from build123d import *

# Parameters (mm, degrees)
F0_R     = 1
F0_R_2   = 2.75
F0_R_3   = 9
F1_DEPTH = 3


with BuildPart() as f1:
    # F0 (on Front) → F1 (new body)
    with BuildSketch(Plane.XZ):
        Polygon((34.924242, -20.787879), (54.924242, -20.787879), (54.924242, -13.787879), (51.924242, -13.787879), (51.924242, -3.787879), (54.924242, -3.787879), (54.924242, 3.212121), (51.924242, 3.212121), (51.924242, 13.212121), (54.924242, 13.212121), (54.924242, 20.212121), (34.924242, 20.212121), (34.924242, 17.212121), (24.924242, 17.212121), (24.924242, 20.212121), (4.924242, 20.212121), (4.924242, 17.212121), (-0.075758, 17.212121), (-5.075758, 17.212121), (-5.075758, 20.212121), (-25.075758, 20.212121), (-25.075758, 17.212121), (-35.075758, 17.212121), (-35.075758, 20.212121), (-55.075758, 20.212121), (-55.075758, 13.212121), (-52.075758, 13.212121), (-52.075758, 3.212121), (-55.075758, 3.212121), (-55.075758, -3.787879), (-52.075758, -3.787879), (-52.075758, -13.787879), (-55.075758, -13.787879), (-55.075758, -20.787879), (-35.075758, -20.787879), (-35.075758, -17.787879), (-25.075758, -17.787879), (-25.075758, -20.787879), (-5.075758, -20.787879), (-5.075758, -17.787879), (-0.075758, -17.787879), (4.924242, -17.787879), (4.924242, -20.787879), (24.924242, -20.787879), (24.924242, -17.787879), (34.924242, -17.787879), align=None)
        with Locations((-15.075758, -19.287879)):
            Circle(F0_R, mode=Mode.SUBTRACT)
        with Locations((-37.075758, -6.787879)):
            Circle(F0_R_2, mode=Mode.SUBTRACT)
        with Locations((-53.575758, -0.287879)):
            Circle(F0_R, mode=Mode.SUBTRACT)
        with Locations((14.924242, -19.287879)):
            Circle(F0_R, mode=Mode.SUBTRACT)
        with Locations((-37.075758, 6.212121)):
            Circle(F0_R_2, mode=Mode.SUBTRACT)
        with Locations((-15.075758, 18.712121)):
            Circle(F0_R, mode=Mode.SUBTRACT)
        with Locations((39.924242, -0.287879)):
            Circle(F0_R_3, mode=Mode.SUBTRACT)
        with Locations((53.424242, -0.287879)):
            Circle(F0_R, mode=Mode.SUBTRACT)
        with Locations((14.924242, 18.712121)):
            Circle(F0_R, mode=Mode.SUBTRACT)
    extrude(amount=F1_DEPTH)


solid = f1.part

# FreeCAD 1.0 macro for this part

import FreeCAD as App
import Part
import Sketcher
from FreeCAD import Vector

doc = App.newDocument("Part")
params = doc.addObject("Spreadsheet::Sheet", "Params")
for row, (alias, value) in enumerate([
    ("sketch1_diameter", "2 mm"),
    ("sketch1_diameter2", "18 mm"),
    ("sketch1_diameter3", "5.5 mm"),
    ("sketch1_width", "20 mm"),
    ("sketch1_width2", "3 mm"),
    ("pad1_length", "3 mm"),
], start=1):
    params.set(f"A{row}", alias)
    params.set(f"B{row}", "=" + value)
    params.setAlias(f"B{row}", alias)

body = doc.addObject("PartDesign::Body", "Body")

sketch1 = body.newObject("Sketcher::SketchObject", "Sketch")
sketch1.AttachmentSupport = (doc.getObject("XZ_Plane"), [""])
sketch1.MapMode = "FlatFace"
sketch1.addGeometry(Part.LineSegment(Vector(34.9, -20.8, 0), Vector(54.9, -20.8, 0)), False)
sketch1.addGeometry(Part.LineSegment(Vector(54.9, -20.8, 0), Vector(54.9, -13.8, 0)), False)
sketch1.addGeometry(Part.LineSegment(Vector(54.9, -13.8, 0), Vector(51.9, -13.8, 0)), False)
sketch1.addGeometry(Part.LineSegment(Vector(51.9, -13.8, 0), Vector(51.9, -3.8, 0)), False)
sketch1.addGeometry(Part.LineSegment(Vector(51.9, -3.8, 0), Vector(54.9, -3.8, 0)), False)
sketch1.addGeometry(Part.LineSegment(Vector(54.9, -3.8, 0), Vector(54.9, 3.2, 0)), False)
sketch1.addGeometry(Part.LineSegment(Vector(54.9, 3.2, 0), Vector(51.9, 3.2, 0)), False)
sketch1.addGeometry(Part.LineSegment(Vector(51.9, 3.2, 0), Vector(51.9, 13.2, 0)), False)
sketch1.addGeometry(Part.LineSegment(Vector(51.9, 13.2, 0), Vector(54.9, 13.2, 0)), False)
sketch1.addGeometry(Part.LineSegment(Vector(54.9, 13.2, 0), Vector(54.9, 20.2, 0)), False)
sketch1.addGeometry(Part.LineSegment(Vector(54.9, 20.2, 0), Vector(34.9, 20.2, 0)), False)
sketch1.addGeometry(Part.LineSegment(Vector(34.9, 20.2, 0), Vector(34.9, 17.2, 0)), False)
sketch1.addGeometry(Part.LineSegment(Vector(34.9, 17.2, 0), Vector(24.9, 17.2, 0)), False)
sketch1.addGeometry(Part.LineSegment(Vector(24.9, 17.2, 0), Vector(24.9, 20.2, 0)), False)
sketch1.addGeometry(Part.LineSegment(Vector(24.9, 20.2, 0), Vector(4.9, 20.2, 0)), False)
sketch1.addGeometry(Part.LineSegment(Vector(4.9, 20.2, 0), Vector(4.9, 17.2, 0)), False)
sketch1.addGeometry(Part.LineSegment(Vector(4.9, 17.2, 0), Vector(-5.1, 17.2, 0)), False)
sketch1.addGeometry(Part.LineSegment(Vector(-5.1, 17.2, 0), Vector(-5.1, 20.2, 0)), False)
sketch1.addGeometry(Part.LineSegment(Vector(-5.1, 20.2, 0), Vector(-25.1, 20.2, 0)), False)
sketch1.addGeometry(Part.LineSegment(Vector(-25.1, 20.2, 0), Vector(-25.1, 17.2, 0)), False)
sketch1.addGeometry(Part.LineSegment(Vector(-25.1, 17.2, 0), Vector(-35.1, 17.2, 0)), False)
sketch1.addGeometry(Part.LineSegment(Vector(-35.1, 17.2, 0), Vector(-35.1, 20.2, 0)), False)
sketch1.addGeometry(Part.LineSegment(Vector(-35.1, 20.2, 0), Vector(-55.1, 20.2, 0)), False)
sketch1.addGeometry(Part.LineSegment(Vector(-55.1, 20.2, 0), Vector(-55.1, 13.2, 0)), False)
sketch1.addGeometry(Part.LineSegment(Vector(-55.1, 13.2, 0), Vector(-52.1, 13.2, 0)), False)
sketch1.addGeometry(Part.LineSegment(Vector(-52.1, 13.2, 0), Vector(-52.1, 3.2, 0)), False)
sketch1.addGeometry(Part.LineSegment(Vector(-52.1, 3.2, 0), Vector(-55.1, 3.2, 0)), False)
sketch1.addGeometry(Part.LineSegment(Vector(-55.1, 3.2, 0), Vector(-55.1, -3.8, 0)), False)
sketch1.addGeometry(Part.LineSegment(Vector(-55.1, -3.8, 0), Vector(-52.1, -3.8, 0)), False)
sketch1.addGeometry(Part.LineSegment(Vector(-52.1, -3.8, 0), Vector(-52.1, -13.8, 0)), False)
sketch1.addGeometry(Part.LineSegment(Vector(-52.1, -13.8, 0), Vector(-55.1, -13.8, 0)), False)
sketch1.addGeometry(Part.LineSegment(Vector(-55.1, -13.8, 0), Vector(-55.1, -20.8, 0)), False)
sketch1.addGeometry(Part.LineSegment(Vector(-55.1, -20.8, 0), Vector(-35.1, -20.8, 0)), False)
sketch1.addGeometry(Part.LineSegment(Vector(-35.1, -20.8, 0), Vector(-35.1, -17.8, 0)), False)
sketch1.addGeometry(Part.LineSegment(Vector(-35.1, -17.8, 0), Vector(-25.1, -17.8, 0)), False)
sketch1.addGeometry(Part.LineSegment(Vector(-25.1, -17.8, 0), Vector(-25.1, -20.8, 0)), False)
sketch1.addGeometry(Part.LineSegment(Vector(-25.1, -20.8, 0), Vector(-5.1, -20.8, 0)), False)
sketch1.addGeometry(Part.LineSegment(Vector(-5.1, -20.8, 0), Vector(-5.1, -17.8, 0)), False)
sketch1.addGeometry(Part.LineSegment(Vector(-5.1, -17.8, 0), Vector(4.9, -17.8, 0)), False)
sketch1.addGeometry(Part.LineSegment(Vector(4.9, -17.8, 0), Vector(4.9, -20.8, 0)), False)
sketch1.addGeometry(Part.LineSegment(Vector(4.9, -20.8, 0), Vector(24.9, -20.8, 0)), False)
sketch1.addGeometry(Part.LineSegment(Vector(24.9, -20.8, 0), Vector(24.9, -17.8, 0)), False)
sketch1.addGeometry(Part.LineSegment(Vector(24.9, -17.8, 0), Vector(34.9, -17.8, 0)), False)
sketch1.addGeometry(Part.LineSegment(Vector(34.9, -17.8, 0), Vector(34.9, -20.8, 0)), False)
sketch1.addGeometry(Part.Circle(Vector(-15.1, -19.3, 0), Vector(0, 0, 1), 1), False)
sketch1.addGeometry(Part.Circle(Vector(-37.1, -6.8, 0), Vector(0, 0, 1), 2.8), False)
sketch1.addGeometry(Part.Circle(Vector(14.9, -19.3, 0), Vector(0, 0, 1), 1), False)
sketch1.addGeometry(Part.Circle(Vector(-53.6, -0.3, 0), Vector(0, 0, 1), 1), False)
sketch1.addGeometry(Part.Circle(Vector(-37.1, 6.2, 0), Vector(0, 0, 1), 2.8), False)
sketch1.addGeometry(Part.Circle(Vector(-15.1, 18.7, 0), Vector(0, 0, 1), 1), False)
sketch1.addGeometry(Part.Circle(Vector(39.9, -0.3, 0), Vector(0, 0, 1), 9), False)
sketch1.addGeometry(Part.Circle(Vector(53.4, -0.3, 0), Vector(0, 0, 1), 1), False)
sketch1.addGeometry(Part.Circle(Vector(14.9, 18.7, 0), Vector(0, 0, 1), 1), False)
sketch1.addConstraint(Sketcher.Constraint("Coincident", 0, 2, 1, 1))
sketch1.addConstraint(Sketcher.Constraint("Coincident", 1, 2, 2, 1))
sketch1.addConstraint(Sketcher.Constraint("Coincident", 2, 2, 3, 1))
sketch1.addConstraint(Sketcher.Constraint("Coincident", 3, 2, 4, 1))
sketch1.addConstraint(Sketcher.Constraint("Coincident", 4, 2, 5, 1))
sketch1.addConstraint(Sketcher.Constraint("Coincident", 5, 2, 6, 1))
sketch1.addConstraint(Sketcher.Constraint("Coincident", 6, 2, 7, 1))
sketch1.addConstraint(Sketcher.Constraint("Coincident", 7, 2, 8, 1))
sketch1.addConstraint(Sketcher.Constraint("Coincident", 8, 2, 9, 1))
sketch1.addConstraint(Sketcher.Constraint("Coincident", 9, 2, 10, 1))
sketch1.addConstraint(Sketcher.Constraint("Coincident", 10, 2, 11, 1))
sketch1.addConstraint(Sketcher.Constraint("Coincident", 11, 2, 12, 1))
sketch1.addConstraint(Sketcher.Constraint("Coincident", 12, 2, 13, 1))
sketch1.addConstraint(Sketcher.Constraint("Coincident", 13, 2, 14, 1))
sketch1.addConstraint(Sketcher.Constraint("Coincident", 14, 2, 15, 1))
sketch1.addConstraint(Sketcher.Constraint("Coincident", 15, 2, 16, 1))
sketch1.addConstraint(Sketcher.Constraint("Coincident", 16, 2, 17, 1))
sketch1.addConstraint(Sketcher.Constraint("Coincident", 17, 2, 18, 1))
sketch1.addConstraint(Sketcher.Constraint("Coincident", 18, 2, 19, 1))
sketch1.addConstraint(Sketcher.Constraint("Coincident", 19, 2, 20, 1))
sketch1.addConstraint(Sketcher.Constraint("Coincident", 20, 2, 21, 1))
sketch1.addConstraint(Sketcher.Constraint("Coincident", 21, 2, 22, 1))
sketch1.addConstraint(Sketcher.Constraint("Coincident", 22, 2, 23, 1))
sketch1.addConstraint(Sketcher.Constraint("Coincident", 23, 2, 24, 1))
sketch1.addConstraint(Sketcher.Constraint("Coincident", 24, 2, 25, 1))
sketch1.addConstraint(Sketcher.Constraint("Coincident", 25, 2, 26, 1))
sketch1.addConstraint(Sketcher.Constraint("Coincident", 26, 2, 27, 1))
sketch1.addConstraint(Sketcher.Constraint("Coincident", 27, 2, 28, 1))
sketch1.addConstraint(Sketcher.Constraint("Coincident", 28, 2, 29, 1))
sketch1.addConstraint(Sketcher.Constraint("Coincident", 29, 2, 30, 1))
sketch1.addConstraint(Sketcher.Constraint("Coincident", 30, 2, 31, 1))
sketch1.addConstraint(Sketcher.Constraint("Coincident", 31, 2, 32, 1))
sketch1.addConstraint(Sketcher.Constraint("Coincident", 32, 2, 33, 1))
sketch1.addConstraint(Sketcher.Constraint("Coincident", 33, 2, 34, 1))
sketch1.addConstraint(Sketcher.Constraint("Coincident", 34, 2, 35, 1))
sketch1.addConstraint(Sketcher.Constraint("Coincident", 35, 2, 36, 1))
sketch1.addConstraint(Sketcher.Constraint("Coincident", 36, 2, 37, 1))
sketch1.addConstraint(Sketcher.Constraint("Coincident", 37, 2, 38, 1))
sketch1.addConstraint(Sketcher.Constraint("Coincident", 38, 2, 39, 1))
sketch1.addConstraint(Sketcher.Constraint("Coincident", 39, 2, 40, 1))
sketch1.addConstraint(Sketcher.Constraint("Coincident", 40, 2, 41, 1))
sketch1.addConstraint(Sketcher.Constraint("Coincident", 41, 2, 42, 1))
sketch1.addConstraint(Sketcher.Constraint("Coincident", 42, 2, 43, 1))
sketch1.addConstraint(Sketcher.Constraint("Coincident", 43, 2, 0, 1))
sketch1.addConstraint(Sketcher.Constraint("Horizontal", 0))
sketch1.addConstraint(Sketcher.Constraint("Vertical", 1))
sketch1.addConstraint(Sketcher.Constraint("Horizontal", 2))
sketch1.addConstraint(Sketcher.Constraint("Vertical", 3))
sketch1.addConstraint(Sketcher.Constraint("Horizontal", 4))
sketch1.addConstraint(Sketcher.Constraint("Vertical", 5))
sketch1.addConstraint(Sketcher.Constraint("Horizontal", 6))
sketch1.addConstraint(Sketcher.Constraint("Vertical", 7))
sketch1.addConstraint(Sketcher.Constraint("Horizontal", 8))
sketch1.addConstraint(Sketcher.Constraint("Vertical", 9))
sketch1.addConstraint(Sketcher.Constraint("Horizontal", 10))
sketch1.addConstraint(Sketcher.Constraint("Vertical", 11))
sketch1.addConstraint(Sketcher.Constraint("Horizontal", 12))
sketch1.addConstraint(Sketcher.Constraint("Vertical", 13))
sketch1.addConstraint(Sketcher.Constraint("Horizontal", 14))
sketch1.addConstraint(Sketcher.Constraint("Vertical", 15))
sketch1.addConstraint(Sketcher.Constraint("Horizontal", 16))
sketch1.addConstraint(Sketcher.Constraint("Vertical", 17))
sketch1.addConstraint(Sketcher.Constraint("Horizontal", 18))
sketch1.addConstraint(Sketcher.Constraint("Vertical", 19))
sketch1.addConstraint(Sketcher.Constraint("Horizontal", 20))
sketch1.addConstraint(Sketcher.Constraint("Vertical", 21))
sketch1.addConstraint(Sketcher.Constraint("Horizontal", 22))
sketch1.addConstraint(Sketcher.Constraint("Vertical", 23))
sketch1.addConstraint(Sketcher.Constraint("Horizontal", 24))
sketch1.addConstraint(Sketcher.Constraint("Vertical", 25))
sketch1.addConstraint(Sketcher.Constraint("Horizontal", 26))
sketch1.addConstraint(Sketcher.Constraint("Vertical", 27))
sketch1.addConstraint(Sketcher.Constraint("Horizontal", 28))
sketch1.addConstraint(Sketcher.Constraint("Vertical", 29))
sketch1.addConstraint(Sketcher.Constraint("Horizontal", 30))
sketch1.addConstraint(Sketcher.Constraint("Vertical", 31))
sketch1.addConstraint(Sketcher.Constraint("Horizontal", 32))
sketch1.addConstraint(Sketcher.Constraint("Vertical", 33))
sketch1.addConstraint(Sketcher.Constraint("Horizontal", 34))
sketch1.addConstraint(Sketcher.Constraint("Vertical", 35))
sketch1.addConstraint(Sketcher.Constraint("Horizontal", 36))
sketch1.addConstraint(Sketcher.Constraint("Vertical", 37))
sketch1.addConstraint(Sketcher.Constraint("Horizontal", 38))
sketch1.addConstraint(Sketcher.Constraint("Vertical", 39))
sketch1.addConstraint(Sketcher.Constraint("Horizontal", 40))
sketch1.addConstraint(Sketcher.Constraint("Vertical", 41))
sketch1.addConstraint(Sketcher.Constraint("Horizontal", 42))
sketch1.addConstraint(Sketcher.Constraint("Vertical", 43))
sketch1.addConstraint(Sketcher.Constraint("Equal", 44, 46))
sketch1.addConstraint(Sketcher.Constraint("Equal", 46, 47))
sketch1.addConstraint(Sketcher.Constraint("Equal", 45, 48))
sketch1.addConstraint(Sketcher.Constraint("Equal", 47, 49))
sketch1.addConstraint(Sketcher.Constraint("Equal", 49, 51))
sketch1.addConstraint(Sketcher.Constraint("Equal", 51, 52))
sketch1.addConstraint(Sketcher.Constraint("Horizontal", 44, 3, 46, 3))
sketch1.addConstraint(Sketcher.Constraint("Horizontal", 47, 3, 50, 3))
sketch1.addConstraint(Sketcher.Constraint("Horizontal", 50, 3, 51, 3))
sketch1.addConstraint(Sketcher.Constraint("Horizontal", 49, 3, 52, 3))
sketch1.addConstraint(Sketcher.Constraint("Horizontal", 10, 2, 13, 2))
sketch1.addConstraint(Sketcher.Constraint("Horizontal", 12, 2, 15, 2))
sketch1.addConstraint(Sketcher.Constraint("Horizontal", 14, 2, 17, 2))
sketch1.addConstraint(Sketcher.Constraint("Horizontal", 16, 2, 19, 2))
sketch1.addConstraint(Sketcher.Constraint("Horizontal", 18, 2, 21, 2))
sketch1.addConstraint(Sketcher.Constraint("Horizontal", 8, 2, 23, 2))
sketch1.addConstraint(Sketcher.Constraint("Horizontal", 6, 2, 25, 2))
sketch1.addConstraint(Sketcher.Constraint("Horizontal", 4, 2, 27, 2))
sketch1.addConstraint(Sketcher.Constraint("Horizontal", 2, 2, 29, 2))
sketch1.addConstraint(Sketcher.Constraint("Horizontal", 0, 2, 31, 2))
sketch1.addConstraint(Sketcher.Constraint("Horizontal", 32, 2, 35, 2))
sketch1.addConstraint(Sketcher.Constraint("Horizontal", 34, 2, 37, 2))
sketch1.addConstraint(Sketcher.Constraint("Horizontal", 36, 2, 39, 2))
sketch1.addConstraint(Sketcher.Constraint("Horizontal", 38, 2, 41, 2))
sketch1.addConstraint(Sketcher.Constraint("Vertical", 45, 3, 48, 3))
sketch1.addConstraint(Sketcher.Constraint("Vertical", 44, 3, 49, 3))
sketch1.addConstraint(Sketcher.Constraint("Vertical", 46, 3, 52, 3))
sketch1.addConstraint(Sketcher.Constraint("Vertical", 1, 2, 4, 2))
sketch1.addConstraint(Sketcher.Constraint("Vertical", 3, 2, 6, 2))
sketch1.addConstraint(Sketcher.Constraint("Vertical", 5, 2, 8, 2))
sketch1.addConstraint(Sketcher.Constraint("Vertical", 23, 2, 26, 2))
sketch1.addConstraint(Sketcher.Constraint("Vertical", 25, 2, 28, 2))
sketch1.addConstraint(Sketcher.Constraint("Vertical", 27, 2, 30, 2))
sketch1.addConstraint(Sketcher.Constraint("Vertical", 21, 2, 32, 2))
sketch1.addConstraint(Sketcher.Constraint("Vertical", 19, 2, 34, 2))
sketch1.addConstraint(Sketcher.Constraint("Vertical", 17, 2, 36, 2))
sketch1.addConstraint(Sketcher.Constraint("Vertical", 15, 2, 38, 2))
sketch1.addConstraint(Sketcher.Constraint("Vertical", 13, 2, 40, 2))
sketch1.addConstraint(Sketcher.Constraint("Vertical", 11, 2, 42, 2))
sketch1.addConstraint(Sketcher.Constraint("Equal", 10, 14))
sketch1.addConstraint(Sketcher.Constraint("Equal", 12, 16))
sketch1.addConstraint(Sketcher.Constraint("Equal", 14, 18))
sketch1.addConstraint(Sketcher.Constraint("Equal", 16, 20))
sketch1.addConstraint(Sketcher.Constraint("Equal", 18, 22))
sketch1.addConstraint(Sketcher.Constraint("Equal", 8, 24))
sketch1.addConstraint(Sketcher.Constraint("Equal", 42, 3))
sketch1.addConstraint(Sketcher.Constraint("Equal", 1, 5))
sketch1.addConstraint(Sketcher.Constraint("Equal", 3, 7))
sketch1.addConstraint(Sketcher.Constraint("Equal", 5, 9))
sketch1.addConstraint(Sketcher.Constraint("Equal", 30, 11))
sketch1.addConstraint(Sketcher.Constraint("Equal", 21, 33))
sketch1.addConstraint(Sketcher.Constraint("Diameter", 44, 2.0))
sketch1.addConstraint(Sketcher.Constraint("Diameter", 50, 18.0))
sketch1.addConstraint(Sketcher.Constraint("Diameter", 45, 5.5))
sketch1.addConstraint(Sketcher.Constraint("DistanceX", 0, 1, 0, 2, 20.0))
sketch1.addConstraint(Sketcher.Constraint("DistanceX", 2, 2, 2, 1, 3.0))
sketch1.addConstraint(Sketcher.Constraint("DistanceX", 12, 2, 12, 1, 10.0))
sketch1.addConstraint(Sketcher.Constraint("DistanceY", 1, 1, 1, 2, 7.0))
sketch1.addConstraint(Sketcher.Constraint("DistanceX", 45, 3, 44, 3, 22.0))
sketch1.addConstraint(Sketcher.Constraint("DistanceX", 44, 3, 46, 3, 30.0))
sketch1.addConstraint(Sketcher.Constraint("DistanceY", 44, 3, 47, 3, 19.0))
sketch1.addConstraint(Sketcher.Constraint("DistanceY", 45, 3, 48, 3, 13.0))
sketch1.addConstraint(Sketcher.Constraint("DistanceY", 44, 3, 49, 3, 38.0))
sketch1.addConstraint(Sketcher.Constraint("DistanceX", 46, 3, 50, 3, 25.0))
sketch1.addConstraint(Sketcher.Constraint("DistanceX", 50, 3, 0, 2, 15.0))
sketch1.addConstraint(Sketcher.Constraint("DistanceY", 48, 3, 18, 2, 14.0))
sketch1.addConstraint(Sketcher.Constraint("DistanceY", 44, 3, 45, 3, 12.5))
sketch1.addConstraint(Sketcher.Constraint("DistanceX", 47, 3, 45, 3, 16.5))
sketch1.addConstraint(Sketcher.Constraint("DistanceX", 50, 3, 51, 3, 13.5))
sketch1.addConstraint(Sketcher.Constraint("DistanceY", 44, 3, -1, 1, 19.287879))
sketch1.addConstraint(Sketcher.Constraint("DistanceX", -1, 1, 12, 2, 24.924242))
sketch1.setExpression("Constraints[139]", "Params.sketch1_diameter")
sketch1.setExpression("Constraints[140]", "Params.sketch1_diameter2")
sketch1.setExpression("Constraints[141]", "Params.sketch1_diameter3")
sketch1.setExpression("Constraints[142]", "Params.sketch1_width")
sketch1.setExpression("Constraints[143]", "Params.sketch1_width2")
pad1 = body.newObject("PartDesign::Pad", "Pad")
pad1.Profile = sketch1
pad1.setExpression("Length", "Params.pad1_length")

doc.recompute()
